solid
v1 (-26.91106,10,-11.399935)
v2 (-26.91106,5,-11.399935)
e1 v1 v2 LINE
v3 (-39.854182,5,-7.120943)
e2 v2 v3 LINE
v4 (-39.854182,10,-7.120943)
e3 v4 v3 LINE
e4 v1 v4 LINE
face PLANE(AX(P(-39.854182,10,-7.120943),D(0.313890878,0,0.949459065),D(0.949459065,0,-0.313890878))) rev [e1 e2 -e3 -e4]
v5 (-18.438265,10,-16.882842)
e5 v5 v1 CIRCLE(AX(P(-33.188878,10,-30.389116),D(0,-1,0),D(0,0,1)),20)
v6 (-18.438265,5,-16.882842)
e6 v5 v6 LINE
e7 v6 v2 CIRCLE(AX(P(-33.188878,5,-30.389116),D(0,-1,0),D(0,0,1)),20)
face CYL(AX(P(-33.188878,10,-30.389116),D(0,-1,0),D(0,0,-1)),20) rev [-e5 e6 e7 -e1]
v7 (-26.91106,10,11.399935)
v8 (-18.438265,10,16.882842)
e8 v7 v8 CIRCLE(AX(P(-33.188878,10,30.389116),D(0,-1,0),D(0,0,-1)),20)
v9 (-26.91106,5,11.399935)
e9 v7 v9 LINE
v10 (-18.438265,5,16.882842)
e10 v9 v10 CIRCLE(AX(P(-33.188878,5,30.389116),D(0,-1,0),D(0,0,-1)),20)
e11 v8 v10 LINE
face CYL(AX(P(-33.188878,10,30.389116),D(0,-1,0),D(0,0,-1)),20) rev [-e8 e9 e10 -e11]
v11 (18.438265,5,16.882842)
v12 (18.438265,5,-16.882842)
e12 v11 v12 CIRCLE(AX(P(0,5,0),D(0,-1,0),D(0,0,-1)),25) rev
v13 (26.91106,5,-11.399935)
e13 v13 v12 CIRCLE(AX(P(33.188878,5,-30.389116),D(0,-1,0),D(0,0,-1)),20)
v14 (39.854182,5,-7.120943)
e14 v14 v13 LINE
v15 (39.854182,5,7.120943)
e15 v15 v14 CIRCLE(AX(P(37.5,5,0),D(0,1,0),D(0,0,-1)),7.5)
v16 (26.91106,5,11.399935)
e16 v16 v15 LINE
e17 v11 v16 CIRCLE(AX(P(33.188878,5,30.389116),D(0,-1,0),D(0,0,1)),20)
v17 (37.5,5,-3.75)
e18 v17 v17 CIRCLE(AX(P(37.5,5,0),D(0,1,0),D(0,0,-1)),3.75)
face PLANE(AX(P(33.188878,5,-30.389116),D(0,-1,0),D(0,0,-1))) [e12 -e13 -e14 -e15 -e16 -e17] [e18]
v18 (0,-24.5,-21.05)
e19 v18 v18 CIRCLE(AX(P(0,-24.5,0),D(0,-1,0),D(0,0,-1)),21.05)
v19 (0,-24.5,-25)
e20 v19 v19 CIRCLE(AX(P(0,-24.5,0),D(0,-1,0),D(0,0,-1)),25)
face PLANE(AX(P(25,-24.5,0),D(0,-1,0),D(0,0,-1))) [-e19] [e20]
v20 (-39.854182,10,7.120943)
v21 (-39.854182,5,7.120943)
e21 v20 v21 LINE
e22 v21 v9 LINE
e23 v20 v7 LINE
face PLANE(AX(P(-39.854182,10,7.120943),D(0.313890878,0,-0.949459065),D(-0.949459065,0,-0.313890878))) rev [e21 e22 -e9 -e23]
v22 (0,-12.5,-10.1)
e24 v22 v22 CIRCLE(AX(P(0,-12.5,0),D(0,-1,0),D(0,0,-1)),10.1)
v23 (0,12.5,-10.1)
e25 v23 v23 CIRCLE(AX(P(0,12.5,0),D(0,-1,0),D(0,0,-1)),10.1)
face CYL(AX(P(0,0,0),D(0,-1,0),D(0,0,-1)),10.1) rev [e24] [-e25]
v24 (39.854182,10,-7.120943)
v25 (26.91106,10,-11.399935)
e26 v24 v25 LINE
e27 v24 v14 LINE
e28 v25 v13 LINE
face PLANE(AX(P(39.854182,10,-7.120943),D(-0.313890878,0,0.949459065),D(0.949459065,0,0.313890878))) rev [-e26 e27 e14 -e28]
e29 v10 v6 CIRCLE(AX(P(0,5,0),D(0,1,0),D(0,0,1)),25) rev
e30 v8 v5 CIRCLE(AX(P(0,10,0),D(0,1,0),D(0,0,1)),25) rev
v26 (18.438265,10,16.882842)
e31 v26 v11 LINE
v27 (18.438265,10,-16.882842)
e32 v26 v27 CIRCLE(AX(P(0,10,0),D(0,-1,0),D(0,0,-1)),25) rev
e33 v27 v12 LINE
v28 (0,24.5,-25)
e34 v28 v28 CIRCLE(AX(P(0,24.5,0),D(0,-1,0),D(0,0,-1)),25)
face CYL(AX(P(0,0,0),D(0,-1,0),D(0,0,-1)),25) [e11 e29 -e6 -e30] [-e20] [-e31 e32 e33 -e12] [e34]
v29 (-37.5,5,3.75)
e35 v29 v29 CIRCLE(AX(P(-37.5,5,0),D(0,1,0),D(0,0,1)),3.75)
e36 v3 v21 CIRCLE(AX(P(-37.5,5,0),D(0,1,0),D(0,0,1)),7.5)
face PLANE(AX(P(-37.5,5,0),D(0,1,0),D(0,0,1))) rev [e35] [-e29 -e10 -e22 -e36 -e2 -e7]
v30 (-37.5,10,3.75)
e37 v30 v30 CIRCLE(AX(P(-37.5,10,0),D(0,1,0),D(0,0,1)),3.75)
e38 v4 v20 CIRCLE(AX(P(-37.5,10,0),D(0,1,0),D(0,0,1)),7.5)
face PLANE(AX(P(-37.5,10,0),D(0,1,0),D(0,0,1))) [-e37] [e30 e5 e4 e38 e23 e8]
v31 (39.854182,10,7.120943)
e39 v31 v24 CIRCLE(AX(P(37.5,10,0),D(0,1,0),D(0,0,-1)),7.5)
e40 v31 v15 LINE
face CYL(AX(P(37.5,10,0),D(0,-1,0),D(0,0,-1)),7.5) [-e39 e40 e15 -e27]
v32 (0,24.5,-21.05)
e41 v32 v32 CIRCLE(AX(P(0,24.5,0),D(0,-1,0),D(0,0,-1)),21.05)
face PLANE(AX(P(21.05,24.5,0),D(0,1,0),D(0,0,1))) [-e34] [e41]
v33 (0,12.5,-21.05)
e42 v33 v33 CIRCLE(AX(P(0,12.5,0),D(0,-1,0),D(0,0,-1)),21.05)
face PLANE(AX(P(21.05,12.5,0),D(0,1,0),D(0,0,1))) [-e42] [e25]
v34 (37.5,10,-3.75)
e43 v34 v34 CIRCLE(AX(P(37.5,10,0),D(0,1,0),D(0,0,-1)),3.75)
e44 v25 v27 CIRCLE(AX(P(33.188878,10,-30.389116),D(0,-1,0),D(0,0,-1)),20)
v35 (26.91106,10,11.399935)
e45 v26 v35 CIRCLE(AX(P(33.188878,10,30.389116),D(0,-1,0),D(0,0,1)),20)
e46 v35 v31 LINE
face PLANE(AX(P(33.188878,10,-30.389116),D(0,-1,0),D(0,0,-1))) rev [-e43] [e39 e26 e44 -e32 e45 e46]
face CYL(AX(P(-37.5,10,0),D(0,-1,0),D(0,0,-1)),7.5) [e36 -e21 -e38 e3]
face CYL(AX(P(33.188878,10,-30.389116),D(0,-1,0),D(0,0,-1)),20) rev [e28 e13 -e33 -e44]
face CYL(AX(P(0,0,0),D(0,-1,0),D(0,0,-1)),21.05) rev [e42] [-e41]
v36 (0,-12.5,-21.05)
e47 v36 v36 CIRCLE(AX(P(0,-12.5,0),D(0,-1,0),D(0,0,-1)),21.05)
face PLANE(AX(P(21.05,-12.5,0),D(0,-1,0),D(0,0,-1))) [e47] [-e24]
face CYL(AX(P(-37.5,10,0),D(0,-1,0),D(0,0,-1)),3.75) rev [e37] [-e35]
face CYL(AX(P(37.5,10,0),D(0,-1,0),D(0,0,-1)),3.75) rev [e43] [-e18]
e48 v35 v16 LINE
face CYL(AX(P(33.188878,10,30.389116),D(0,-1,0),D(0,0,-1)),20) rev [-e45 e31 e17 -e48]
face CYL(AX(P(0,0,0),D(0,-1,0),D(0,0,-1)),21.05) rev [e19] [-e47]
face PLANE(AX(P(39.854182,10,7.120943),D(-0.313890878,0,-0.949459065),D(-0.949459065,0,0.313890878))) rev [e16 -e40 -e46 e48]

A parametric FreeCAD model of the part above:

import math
import FreeCAD as App
import Part
import Sketcher
from FreeCAD import Vector
Q = App.Units.Quantity


def add_polygon(sketch, points):
    """Adds a closed chain of lines whose ends are joined by coincident constraints."""
    first, n = sketch.GeometryCount, len(points)
    for a, b in zip(points, points[1:] + points[:1]):
        sketch.addGeometry(Part.LineSegment(App.Vector(*a, 0), App.Vector(*b, 0)), False)
    for i in range(n):
        sketch.addConstraint(Sketcher.Constraint("Coincident", first + i, 2, first + (i + 1) % n, 1))

doc = App.newDocument("Part")
body = doc.addObject("PartDesign::Body", "Body")

sketch1 = body.newObject("Sketcher::SketchObject", "Sketch")
sketch1.AttachmentSupport = (doc.getObject("XY_Plane"), [""])
sketch1.MapMode = "FlatFace"
add_polygon(sketch1, [(25, 24.5), (21.1, 24.5), (21.1, 12.5), (10.1, 12.5), (10.1, -12.5), (21.1, -12.5), (21.1, -24.5), (25, -24.5)])
sketch1.addConstraint(Sketcher.Constraint("Horizontal", 0))
sketch1.addConstraint(Sketcher.Constraint("Vertical", 1))
sketch1.addConstraint(Sketcher.Constraint("Horizontal", 2))
sketch1.addConstraint(Sketcher.Constraint("Vertical", 3))
sketch1.addConstraint(Sketcher.Constraint("Horizontal", 4))
sketch1.addConstraint(Sketcher.Constraint("Vertical", 5))
sketch1.addConstraint(Sketcher.Constraint("Horizontal", 6))
sketch1.addConstraint(Sketcher.Constraint("Vertical", 7))
sketch1.addConstraint(Sketcher.Constraint("Symmetric", 1, 2, 4, 2, -1))
sketch1.addConstraint(Sketcher.Constraint("Equal", 1, 5))
sketch1.addConstraint(Sketcher.Constraint("DistanceY", 1, 2, 1, 1, Q("12 mm")))
sketch1.addConstraint(Sketcher.Constraint("DistanceY", 3, 2, 3, 1, Q("25 mm")))
sketch1.addConstraint(Sketcher.Constraint("DistanceX", -1, 1, 6, 2, Q("25 mm")))
sketch1.addConstraint(Sketcher.Constraint("DistanceX", 0, 2, 0, 1, Q("3.95 mm")))
sketch1.addConstraint(Sketcher.Constraint("DistanceX", 2, 2, 2, 1, Q("10.95 mm")))
revolution = body.newObject("PartDesign::Revolution", "Revolution")
revolution.Profile = sketch1
revolution.ReferenceAxis = (sketch1, ["V_Axis"])
revolution.Angle = 360

sketch2 = body.newObject("Sketcher::SketchObject", "Sketch001")
sketch2.AttachmentSupport = (doc.getObject("XZ_Plane"), [""])
sketch2.MapMode = "FlatFace"
sketch2.AttachmentOffset = App.Placement(Vector(0, 0, -5), App.Rotation())
sketch2.addGeometry(Part.LineSegment(Vector(-26.9, -11.4, 0), Vector(-39.9, -7.1, 0)), False)
sketch2.addGeometry(Part.ArcOfCircle(Part.Circle(Vector(-37.5, 0, 0), Vector(0, 0, 1), 7.5), math.radians(108), math.radians(252)), False)
sketch2.addGeometry(Part.LineSegment(Vector(-39.9, 7.1, 0), Vector(-26.9, 11.4, 0)), False)
sketch2.addGeometry(Part.ArcOfCircle(Part.Circle(Vector(-33.2, 30.4, 0), Vector(0, 0, 1), 20), math.radians(-72), math.radians(-42)), False)
sketch2.addGeometry(Part.LineSegment(Vector(-18.4, 16.9, 0), Vector(-18.4, -16.9, 0)), False)
sketch2.addGeometry(Part.ArcOfCircle(Part.Circle(Vector(-33.2, -30.4, 0), Vector(0, 0, 1), 20), math.radians(42), math.radians(72)), False)
sketch2.addGeometry(Part.Circle(Vector(-37.5, 0, 0), Vector(0, 0, 1), 3.8), False)
sketch2.addGeometry(Part.LineSegment(Vector(18.4, -16.9, 0), Vector(18.4, 16.9, 0)), False)
sketch2.addGeometry(Part.ArcOfCircle(Part.Circle(Vector(33.2, 30.4, 0), Vector(0, 0, 1), 20), math.radians(-138), math.radians(-108)), False)
sketch2.addGeometry(Part.LineSegment(Vector(26.9, 11.4, 0), Vector(39.9, 7.1, 0)), False)
sketch2.addGeometry(Part.ArcOfCircle(Part.Circle(Vector(37.5, 0, 0), Vector(0, 0, 1), 7.5), math.radians(-72), math.radians(72)), False)
sketch2.addGeometry(Part.LineSegment(Vector(39.9, -7.1, 0), Vector(26.9, -11.4, 0)), False)
sketch2.addGeometry(Part.ArcOfCircle(Part.Circle(Vector(33.2, -30.4, 0), Vector(0, 0, 1), 20), math.radians(108), math.radians(138)), False)
sketch2.addGeometry(Part.Circle(Vector(37.5, 0, 0), Vector(0, 0, 1), 3.8), False)
sketch2.addConstraint(Sketcher.Constraint("Tangent", 0, 2, 1, 2))
sketch2.addConstraint(Sketcher.Constraint("Tangent", 1, 1, 2, 1))
sketch2.addConstraint(Sketcher.Constraint("Tangent", 2, 2, 3, 1))
sketch2.addConstraint(Sketcher.Constraint("Coincident", 3, 2, 4, 1))
sketch2.addConstraint(Sketcher.Constraint("Coincident", 4, 2, 5, 1))
sketch2.addConstraint(Sketcher.Constraint("Tangent", 5, 2, 0, 1))
sketch2.addConstraint(Sketcher.Constraint("Coincident", 7, 2, 8, 1))
sketch2.addConstraint(Sketcher.Constraint("Tangent", 8, 2, 9, 1))
sketch2.addConstraint(Sketcher.Constraint("Tangent", 9, 2, 10, 2))
sketch2.addConstraint(Sketcher.Constraint("Tangent", 10, 1, 11, 1))
sketch2.addConstraint(Sketcher.Constraint("Tangent", 11, 2, 12, 1))
sketch2.addConstraint(Sketcher.Constraint("Coincident", 12, 2, 7, 1))
sketch2.addConstraint(Sketcher.Constraint("Vertical", 4))
sketch2.addConstraint(Sketcher.Constraint("Vertical", 7))
sketch2.addConstraint(Sketcher.Constraint("Coincident", 6, 3, 1, 3))
sketch2.addConstraint(Sketcher.Constraint("Coincident", 13, 3, 10, 3))
sketch2.addConstraint(Sketcher.Constraint("Equal", 3, 5))
sketch2.addConstraint(Sketcher.Constraint("Equal", 5, 8))
sketch2.addConstraint(Sketcher.Constraint("Equal", 1, 10))
sketch2.addConstraint(Sketcher.Constraint("Equal", 8, 12))
sketch2.addConstraint(Sketcher.Constraint("Equal", 6, 13))
sketch2.addConstraint(Sketcher.Constraint("Symmetric", 5, 3, 8, 3, -1, 1))
sketch2.addConstraint(Sketcher.Constraint("Symmetric", 1, 3, 10, 3, -1, 1))
sketch2.addConstraint(Sketcher.Constraint("Symmetric", 3, 3, 12, 3, -1, 1))
sketch2.addConstraint(Sketcher.Constraint("Symmetric", 3, 3, 8, 3, -2))
sketch2.addConstraint(Sketcher.Constraint("PointOnObject", 1, 3, -1))
sketch2.addConstraint(Sketcher.Constraint("Horizontal", 3, 2, 7, 2))
sketch2.addConstraint(Sketcher.Constraint("Radius", 3, Q("20 mm")))
sketch2.addConstraint(Sketcher.Constraint("Diameter", 6, Q("7.5 mm")))
sketch2.addConstraint(Sketcher.Constraint("Radius", 1, Q("7.5 mm")))
sketch2.addConstraint(Sketcher.Constraint("DistanceX", 1, 3, 10, 3, Q("75 mm")))
sketch2.addConstraint(Sketcher.Constraint("Distance", 0, Q("13.6321 mm")))
sketch2.addConstraint(Sketcher.Constraint("DistanceY", 1, 1, 3, 2, Q("9.761899 mm")))
sketch2.addConstraint(Sketcher.Constraint("DistanceY", 4, 2, 4, 1, Q("33.765685 mm")))
pad1 = body.newObject("PartDesign::Pad", "Pad")
pad1.Profile = sketch2
pad1.Length = 5
pad1.Reversed = True

doc.recompute()
